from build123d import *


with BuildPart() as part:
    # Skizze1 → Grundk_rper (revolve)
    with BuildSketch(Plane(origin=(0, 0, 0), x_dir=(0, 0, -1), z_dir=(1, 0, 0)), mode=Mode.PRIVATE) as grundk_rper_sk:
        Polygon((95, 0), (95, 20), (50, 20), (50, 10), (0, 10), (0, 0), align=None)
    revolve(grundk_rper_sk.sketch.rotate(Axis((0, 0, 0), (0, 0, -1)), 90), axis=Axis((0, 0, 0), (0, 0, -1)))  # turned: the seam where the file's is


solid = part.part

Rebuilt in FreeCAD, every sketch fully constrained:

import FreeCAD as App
import Part
import Sketcher
from FreeCAD import Vector
Q = App.Units.Quantity


def add_polygon(sketch, points):
    """Adds a closed chain of lines whose ends are joined by coincident constraints."""
    first, n = sketch.GeometryCount, len(points)
    for a, b in zip(points, points[1:] + points[:1]):
        sketch.addGeometry(Part.LineSegment(App.Vector(*a, 0), App.Vector(*b, 0)), False)
    for i in range(n):
        sketch.addConstraint(Sketcher.Constraint("Coincident", first + i, 2, first + (i + 1) % n, 1))

doc = App.newDocument("Part")
params = doc.addObject("Spreadsheet::Sheet", "Params")
for row, (alias, value) in enumerate([
    ("sketch1_width", "20 mm"),
    ("sketch1_height", "45 mm"),
    ("sketch1_height2", "50 mm"),
    ("revolution_angle", "360 deg"),
], start=1):
    params.set(f"A{row}", alias)
    params.set(f"B{row}", "=" + value)
    params.setAlias(f"B{row}", alias)

body = doc.addObject("PartDesign::Body", "Body")

sketch1 = doc.addObject("Sketcher::SketchObject", "Sketch")
body.addObject(sketch1)
sketch1.AttachmentSupport = (doc.YZ_Plane, [""])
sketch1.MapMode = "FlatFace"
add_polygon(sketch1, [(0, -95), (20, -95), (20, -50), (10, -50), (10, 0), (0, 0)])
sketch1.addConstraint(Sketcher.Constraint("Horizontal", 0))
sketch1.addConstraint(Sketcher.Constraint("Vertical", 1))
sketch1.addConstraint(Sketcher.Constraint("Horizontal", 2))
sketch1.addConstraint(Sketcher.Constraint("Vertical", 3))
sketch1.addConstraint(Sketcher.Constraint("Horizontal", 4))
sketch1.addConstraint(Sketcher.Constraint("Vertical", 5))
sketch1.addConstraint(Sketcher.Constraint("Coincident", 4, 2, -1, 1))
sketch1.addConstraint(Sketcher.Constraint("Equal", 2, 4))
sketch1.addConstraint(Sketcher.Constraint("DistanceX", 0, 1, 0, 2, Q("20 mm")))
sketch1.addConstraint(Sketcher.Constraint("DistanceY", 1, 1, 1, 2, Q("45 mm")))
sketch1.addConstraint(Sketcher.Constraint("DistanceY", 3, 1, 3, 2, Q("50 mm")))
sketch1.setExpression("Constraints[14]", "Params.sketch1_width")
sketch1.setExpression("Constraints[15]", "Params.sketch1_height")
sketch1.setExpression("Constraints[16]", "Params.sketch1_height2")
revolution = doc.addObject("PartDesign::Revolution", "Revolution")
body.addObject(revolution)
revolution.Profile = sketch1
revolution.ReferenceAxis = (sketch1, ["V_Axis"])
revolution.setExpression("Angle", "Params.revolution_angle")

doc.recompute()
